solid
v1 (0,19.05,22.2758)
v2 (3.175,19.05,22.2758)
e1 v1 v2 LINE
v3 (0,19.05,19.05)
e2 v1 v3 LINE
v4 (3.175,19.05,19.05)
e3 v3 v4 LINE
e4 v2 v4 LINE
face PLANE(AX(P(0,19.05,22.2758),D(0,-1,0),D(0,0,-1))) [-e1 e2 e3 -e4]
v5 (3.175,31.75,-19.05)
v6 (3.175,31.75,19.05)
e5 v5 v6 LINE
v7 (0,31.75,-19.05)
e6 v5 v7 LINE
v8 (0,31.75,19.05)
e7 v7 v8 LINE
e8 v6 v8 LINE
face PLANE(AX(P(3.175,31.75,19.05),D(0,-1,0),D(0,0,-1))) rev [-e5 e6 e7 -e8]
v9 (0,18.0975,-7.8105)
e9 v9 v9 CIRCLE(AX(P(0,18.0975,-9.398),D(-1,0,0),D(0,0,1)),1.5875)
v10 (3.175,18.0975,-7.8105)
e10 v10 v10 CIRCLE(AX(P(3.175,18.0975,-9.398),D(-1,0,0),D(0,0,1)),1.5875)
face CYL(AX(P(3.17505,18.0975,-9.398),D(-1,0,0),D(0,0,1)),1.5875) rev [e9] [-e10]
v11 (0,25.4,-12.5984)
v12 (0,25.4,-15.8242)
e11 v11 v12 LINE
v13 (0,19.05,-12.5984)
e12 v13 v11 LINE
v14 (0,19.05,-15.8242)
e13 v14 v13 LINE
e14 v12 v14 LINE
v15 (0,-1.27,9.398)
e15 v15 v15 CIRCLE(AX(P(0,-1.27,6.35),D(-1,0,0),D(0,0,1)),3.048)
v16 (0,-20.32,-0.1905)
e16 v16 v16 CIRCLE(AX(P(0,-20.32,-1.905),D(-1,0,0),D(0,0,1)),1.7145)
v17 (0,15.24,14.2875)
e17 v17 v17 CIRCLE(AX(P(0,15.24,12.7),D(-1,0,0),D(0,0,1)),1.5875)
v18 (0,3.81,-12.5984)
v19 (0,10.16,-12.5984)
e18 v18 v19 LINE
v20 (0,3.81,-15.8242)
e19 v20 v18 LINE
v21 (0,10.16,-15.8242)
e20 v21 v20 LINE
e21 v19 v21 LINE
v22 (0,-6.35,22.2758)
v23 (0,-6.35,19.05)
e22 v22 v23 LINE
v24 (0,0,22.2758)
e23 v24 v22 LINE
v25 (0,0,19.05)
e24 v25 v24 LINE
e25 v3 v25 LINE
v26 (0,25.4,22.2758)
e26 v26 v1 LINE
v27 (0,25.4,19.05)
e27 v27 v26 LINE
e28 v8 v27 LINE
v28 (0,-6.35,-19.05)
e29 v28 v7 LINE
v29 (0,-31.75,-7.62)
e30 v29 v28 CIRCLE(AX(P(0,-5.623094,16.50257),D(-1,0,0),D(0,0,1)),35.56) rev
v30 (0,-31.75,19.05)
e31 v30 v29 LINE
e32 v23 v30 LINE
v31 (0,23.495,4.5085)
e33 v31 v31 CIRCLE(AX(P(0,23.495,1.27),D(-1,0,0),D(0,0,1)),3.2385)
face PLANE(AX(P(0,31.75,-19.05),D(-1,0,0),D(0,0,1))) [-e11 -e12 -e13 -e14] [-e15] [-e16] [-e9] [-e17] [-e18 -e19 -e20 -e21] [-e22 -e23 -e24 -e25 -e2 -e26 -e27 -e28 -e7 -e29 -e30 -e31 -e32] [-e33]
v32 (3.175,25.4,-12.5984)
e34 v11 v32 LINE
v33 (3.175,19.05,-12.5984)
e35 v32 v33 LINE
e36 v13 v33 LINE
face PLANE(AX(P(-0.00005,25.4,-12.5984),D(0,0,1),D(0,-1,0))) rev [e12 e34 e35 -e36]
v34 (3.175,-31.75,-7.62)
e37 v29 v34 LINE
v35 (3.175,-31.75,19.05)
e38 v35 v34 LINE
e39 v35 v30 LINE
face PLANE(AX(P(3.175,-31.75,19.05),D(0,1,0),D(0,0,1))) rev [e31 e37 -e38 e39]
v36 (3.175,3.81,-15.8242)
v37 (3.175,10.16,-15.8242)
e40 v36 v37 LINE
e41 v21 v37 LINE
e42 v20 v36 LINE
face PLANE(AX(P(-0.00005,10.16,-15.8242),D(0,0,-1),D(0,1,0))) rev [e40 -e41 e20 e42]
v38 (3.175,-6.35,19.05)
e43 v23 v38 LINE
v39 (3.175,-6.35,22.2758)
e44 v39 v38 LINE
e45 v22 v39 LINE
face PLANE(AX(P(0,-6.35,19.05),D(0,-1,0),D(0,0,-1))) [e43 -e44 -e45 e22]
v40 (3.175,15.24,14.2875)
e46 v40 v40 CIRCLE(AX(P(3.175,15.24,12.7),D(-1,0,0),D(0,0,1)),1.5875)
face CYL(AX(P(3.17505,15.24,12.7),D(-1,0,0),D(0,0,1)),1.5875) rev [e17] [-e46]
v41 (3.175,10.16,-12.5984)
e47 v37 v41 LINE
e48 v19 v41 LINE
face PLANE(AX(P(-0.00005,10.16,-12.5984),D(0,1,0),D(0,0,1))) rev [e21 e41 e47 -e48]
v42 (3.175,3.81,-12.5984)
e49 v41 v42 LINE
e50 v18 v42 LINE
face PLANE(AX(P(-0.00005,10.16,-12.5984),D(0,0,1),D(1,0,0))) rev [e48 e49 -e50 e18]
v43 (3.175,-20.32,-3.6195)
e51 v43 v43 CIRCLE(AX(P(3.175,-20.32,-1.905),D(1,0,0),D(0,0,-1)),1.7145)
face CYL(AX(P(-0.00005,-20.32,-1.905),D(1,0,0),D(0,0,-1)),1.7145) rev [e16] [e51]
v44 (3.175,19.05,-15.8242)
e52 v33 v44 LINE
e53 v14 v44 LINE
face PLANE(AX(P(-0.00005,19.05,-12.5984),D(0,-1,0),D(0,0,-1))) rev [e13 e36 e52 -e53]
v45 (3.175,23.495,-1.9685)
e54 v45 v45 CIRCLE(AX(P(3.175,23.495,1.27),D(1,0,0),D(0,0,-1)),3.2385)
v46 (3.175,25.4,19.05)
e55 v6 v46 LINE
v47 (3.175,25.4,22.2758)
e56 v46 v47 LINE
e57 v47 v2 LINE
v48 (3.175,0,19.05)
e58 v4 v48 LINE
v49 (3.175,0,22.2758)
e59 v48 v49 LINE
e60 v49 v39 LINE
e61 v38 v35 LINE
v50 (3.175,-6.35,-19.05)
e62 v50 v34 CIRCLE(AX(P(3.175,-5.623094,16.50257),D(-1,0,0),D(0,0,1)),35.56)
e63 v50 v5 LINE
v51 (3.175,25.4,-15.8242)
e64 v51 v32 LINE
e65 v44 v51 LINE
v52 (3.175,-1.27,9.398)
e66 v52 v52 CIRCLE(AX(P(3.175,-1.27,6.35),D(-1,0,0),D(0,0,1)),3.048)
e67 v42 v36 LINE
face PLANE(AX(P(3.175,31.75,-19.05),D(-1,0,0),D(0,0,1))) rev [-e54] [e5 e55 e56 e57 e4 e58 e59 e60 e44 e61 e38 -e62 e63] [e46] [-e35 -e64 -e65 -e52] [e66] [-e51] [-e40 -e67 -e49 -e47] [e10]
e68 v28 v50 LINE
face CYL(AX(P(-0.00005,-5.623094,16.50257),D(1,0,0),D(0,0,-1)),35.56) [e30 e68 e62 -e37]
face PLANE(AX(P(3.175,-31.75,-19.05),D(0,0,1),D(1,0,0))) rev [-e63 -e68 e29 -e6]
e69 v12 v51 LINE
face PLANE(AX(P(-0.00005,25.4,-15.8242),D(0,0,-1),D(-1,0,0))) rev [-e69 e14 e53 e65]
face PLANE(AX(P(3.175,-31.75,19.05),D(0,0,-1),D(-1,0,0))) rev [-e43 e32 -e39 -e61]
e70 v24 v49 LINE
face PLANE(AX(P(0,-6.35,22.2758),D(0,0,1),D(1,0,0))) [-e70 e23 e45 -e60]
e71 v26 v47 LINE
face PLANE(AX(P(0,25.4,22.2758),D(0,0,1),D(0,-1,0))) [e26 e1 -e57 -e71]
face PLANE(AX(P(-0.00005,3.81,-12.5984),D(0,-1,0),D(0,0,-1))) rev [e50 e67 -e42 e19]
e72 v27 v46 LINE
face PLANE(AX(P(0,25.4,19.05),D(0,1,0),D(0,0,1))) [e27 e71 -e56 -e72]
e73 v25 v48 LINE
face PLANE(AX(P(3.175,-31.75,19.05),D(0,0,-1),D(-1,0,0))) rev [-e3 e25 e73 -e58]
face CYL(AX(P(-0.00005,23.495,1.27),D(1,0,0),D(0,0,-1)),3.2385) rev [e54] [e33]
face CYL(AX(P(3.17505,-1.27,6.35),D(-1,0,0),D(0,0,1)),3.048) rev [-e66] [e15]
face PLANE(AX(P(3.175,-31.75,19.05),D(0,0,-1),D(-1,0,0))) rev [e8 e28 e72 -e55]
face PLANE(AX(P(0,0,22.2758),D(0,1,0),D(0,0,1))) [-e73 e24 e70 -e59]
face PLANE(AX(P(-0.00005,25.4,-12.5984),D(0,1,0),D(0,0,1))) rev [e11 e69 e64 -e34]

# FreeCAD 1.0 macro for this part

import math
import FreeCAD as App
import Part
import Sketcher
Q = App.Units.Quantity

doc = App.newDocument("Part")
body = doc.addObject("PartDesign::Body", "Body")

# Sketch on YZ plane
sketch1 = body.newObject("Sketcher::SketchObject", "Sketch")
sketch1.AttachmentSupport = (doc.getObject("YZ_Plane"), [""])
sketch1.MapMode = "FlatFace"
sketch1.addGeometry([
    Part.LineSegment(App.Vector(32, 19, 0), App.Vector(-32, 19, 0)),
    Part.LineSegment(App.Vector(-32, 19, 0), App.Vector(-32, -19, 0)),
    Part.LineSegment(App.Vector(-32, -19, 0), App.Vector(32, -19, 0)),
    Part.LineSegment(App.Vector(32, -19, 0), App.Vector(32, 19, 0)),
], False)
sketch1.addConstraint([
    Sketcher.Constraint("Coincident", 0, 2, 1, 1),
    Sketcher.Constraint("Coincident", 1, 2, 2, 1),
    Sketcher.Constraint("Coincident", 2, 2, 3, 1),
    Sketcher.Constraint("Coincident", 3, 2, 0, 1),
    Sketcher.Constraint("Horizontal", 0),
    Sketcher.Constraint("Vertical", 1),
    Sketcher.Constraint("Horizontal", 2),
    Sketcher.Constraint("Vertical", 3),
    Sketcher.Constraint("Symmetric", 0, 2, 2, 2, -1, 1),
    Sketcher.Constraint("DistanceX", 0, 2, 0, 1, Q("2.5 in")),
    Sketcher.Constraint("DistanceY", 1, 2, 1, 1, Q("1.5 in")),
])
pad1 = body.newObject("PartDesign::Pad", "Pad")
pad1.Profile = sketch1
pad1.Length = Q("0.125 in")

# Sketch on YZ plane
sketch2 = body.newObject("Sketcher::SketchObject", "Sketch001")
sketch2.AttachmentSupport = (doc.getObject("YZ_Plane"), [""])
sketch2.MapMode = "FlatFace"
sketch2.AttachmentOffset = App.Placement(App.Vector(0, 0, 0.125 * 25.4), App.Rotation())
sketch2.addGeometry([
    Part.LineSegment(App.Vector(25.4, 22.3, 0), App.Vector(19.1, 22.3, 0)),  # 0
    Part.LineSegment(App.Vector(19.1, 22.3, 0), App.Vector(19.1, 19.1, 0)),  # 1
    Part.LineSegment(App.Vector(19.1, 19.1, 0), App.Vector(25.4, 19.1, 0)),  # 2
    Part.LineSegment(App.Vector(25.4, 19.1, 0), App.Vector(25.4, 22.3, 0)),  # 3
    Part.LineSegment(App.Vector(0, 22.3, 0), App.Vector(-6.3, 22.3, 0)),  # 4
    Part.LineSegment(App.Vector(-6.3, 22.3, 0), App.Vector(-6.3, 19.1, 0)),  # 5
    Part.LineSegment(App.Vector(-6.3, 19.1, 0), App.Vector(0, 19.1, 0)),  # 6
    Part.LineSegment(App.Vector(0, 19.1, 0), App.Vector(0, 22.3, 0)),  # 7
], False)
sketch2.addConstraint([
    Sketcher.Constraint("Coincident", 0, 2, 1, 1),
    Sketcher.Constraint("Coincident", 1, 2, 2, 1),
    Sketcher.Constraint("Coincident", 2, 2, 3, 1),
    Sketcher.Constraint("Coincident", 3, 2, 0, 1),
    Sketcher.Constraint("Coincident", 4, 2, 5, 1),
    Sketcher.Constraint("Coincident", 5, 2, 6, 1),
    Sketcher.Constraint("Coincident", 6, 2, 7, 1),
    Sketcher.Constraint("Coincident", 7, 2, 4, 1),
    Sketcher.Constraint("Horizontal", 0),
    Sketcher.Constraint("Vertical", 1),
    Sketcher.Constraint("Horizontal", 2),
    Sketcher.Constraint("Vertical", 3),
    Sketcher.Constraint("Horizontal", 4),
    Sketcher.Constraint("Vertical", 5),
    Sketcher.Constraint("Horizontal", 6),
    Sketcher.Constraint("Vertical", 7),
    Sketcher.Constraint("PointOnObject", 6, 2, -2),
    Sketcher.Constraint("Horizontal", 3, 2, 4, 2),
    Sketcher.Constraint("Horizontal", 2, 2, 5, 2),
    Sketcher.Constraint("Equal", 2, 4),
    Sketcher.Constraint("DistanceX", -1, 1, 2, 2, Q("1 in")),
    Sketcher.Constraint("DistanceX", 0, 2, 0, 1, Q("0.25 in")),
    Sketcher.Constraint("DistanceY", 1, 2, 1, 1, Q("0.127 in")),
    Sketcher.Constraint("DistanceY", -1, 1, 1, 2, Q("0.75 in")),
])
pad2 = body.newObject("PartDesign::Pad", "Pad001")
pad2.Profile = sketch2
pad2.Length = Q("0.125 in")
pad2.Reversed = True

# Sketch on YZ plane
sketch3 = body.newObject("Sketcher::SketchObject", "Sketch002")
sketch3.AttachmentSupport = (doc.getObject("YZ_Plane"), [""])
sketch3.MapMode = "FlatFace"
sketch3.AttachmentOffset = App.Placement(App.Vector(0, 0, 0.125 * 25.4), App.Rotation())
sketch3.addGeometry(Part.Circle(App.Vector(-20.3, -1.9, 0), App.Vector(0, 0, 1), 1.7), False)
sketch3.addConstraint([
    Sketcher.Constraint("Diameter", 0, Q("0.135 in")),
    Sketcher.Constraint("DistanceX", 0, 3, -1, 1, Q("0.8 in")),
    Sketcher.Constraint("DistanceY", 0, 3, -1, 1, Q("0.075 in")),
])
pocket1 = body.newObject("PartDesign::Pocket", "Pocket")
pocket1.Profile = sketch3
pocket1.Type = "ThroughAll"

# Sketch on YZ plane
sketch4 = body.newObject("Sketcher::SketchObject", "Sketch003")
sketch4.AttachmentSupport = (doc.getObject("YZ_Plane"), [""])
sketch4.MapMode = "FlatFace"
sketch4.AttachmentOffset = App.Placement(App.Vector(0, 0, 0.125 * 25.4), App.Rotation())
sketch4.addGeometry(Part.Circle(App.Vector(23.5, 1.3, 0), App.Vector(0, 0, 1), 3.2), False)
sketch4.addConstraint([
    Sketcher.Constraint("Diameter", 0, Q("0.255 in")),
    Sketcher.Constraint("DistanceY", -1, 1, 0, 3, Q("0.05 in")),
    Sketcher.Constraint("DistanceX", -1, 1, 0, 3, Q("0.925 in")),
])
pocket2 = body.newObject("PartDesign::Pocket", "Pocket001")
pocket2.Profile = sketch4
pocket2.Type = "ThroughAll"

# Sketch on YZ plane
sketch5 = body.newObject("Sketcher::SketchObject", "Sketch004")
sketch5.AttachmentSupport = (doc.getObject("YZ_Plane"), [""])
sketch5.MapMode = "FlatFace"
sketch5.AttachmentOffset = App.Placement(App.Vector(0, 0, 0.125 * 25.4), App.Rotation())
sketch5.addGeometry([
    Part.LineSegment(App.Vector(-32, -19, 0), App.Vector(-6, -19, 0)),
    Part.ArcOfCircle(Part.Circle(App.Vector(-6, 17, 0), App.Vector(0, 0, 1), 36), math.radians(-137), math.radians(-91)),
    Part.LineSegment(App.Vector(-32, -8, 0), App.Vector(-32, -19, 0)),
], False)
sketch5.addConstraint([
    Sketcher.Constraint("Coincident", 0, 2, 1, 2),
    Sketcher.Constraint("Coincident", 1, 1, 2, 1),
    Sketcher.Constraint("Coincident", 2, 2, 0, 1),
    Sketcher.Constraint("Horizontal", 0),
    Sketcher.Constraint("Vertical", 2),
    Sketcher.Constraint("Radius", 1, Q("1.4 in")),
    Sketcher.Constraint("DistanceX", 0, 1, 0, 2, Q("1 in")),
    Sketcher.Constraint("DistanceY", 2, 2, 2, 1, Q("0.45 in")),
    Sketcher.Constraint("DistanceY", 1, 1, -1, 1, Q("0.3 in")),
    Sketcher.Constraint("DistanceX", 0, 2, -1, 1, Q("0.25 in")),
])
pocket3 = body.newObject("PartDesign::Pocket", "Pocket002")
pocket3.Profile = sketch5
pocket3.Type = "ThroughAll"

# Sketch on YZ plane
sketch6 = body.newObject("Sketcher::SketchObject", "Sketch005")
sketch6.AttachmentSupport = (doc.getObject("YZ_Plane"), [""])
sketch6.MapMode = "FlatFace"
sketch6.AttachmentOffset = App.Placement(App.Vector(0, 0, 0.125 * 25.4), App.Rotation())
sketch6.addGeometry([
    Part.LineSegment(App.Vector(25.4, -12.6, 0), App.Vector(19.1, -12.6, 0)),  # 0
    Part.LineSegment(App.Vector(19.1, -12.6, 0), App.Vector(19.1, -15.8, 0)),  # 1
    Part.LineSegment(App.Vector(19.1, -15.8, 0), App.Vector(25.4, -15.8, 0)),  # 2
    Part.LineSegment(App.Vector(25.4, -15.8, 0), App.Vector(25.4, -12.6, 0)),  # 3
    Part.LineSegment(App.Vector(10.2, -12.6, 0), App.Vector(3.8, -12.6, 0)),  # 4
    Part.LineSegment(App.Vector(3.8, -12.6, 0), App.Vector(3.8, -15.8, 0)),  # 5
    Part.LineSegment(App.Vector(3.8, -15.8, 0), App.Vector(10.2, -15.8, 0)),  # 6
    Part.LineSegment(App.Vector(10.2, -15.8, 0), App.Vector(10.2, -12.6, 0)),  # 7
], False)
sketch6.addConstraint([
    Sketcher.Constraint("Coincident", 0, 2, 1, 1),
    Sketcher.Constraint("Coincident", 1, 2, 2, 1),
    Sketcher.Constraint("Coincident", 2, 2, 3, 1),
    Sketcher.Constraint("Coincident", 3, 2, 0, 1),
    Sketcher.Constraint("Coincident", 4, 2, 5, 1),
    Sketcher.Constraint("Coincident", 5, 2, 6, 1),
    Sketcher.Constraint("Coincident", 6, 2, 7, 1),
    Sketcher.Constraint("Coincident", 7, 2, 4, 1),
    Sketcher.Constraint("Horizontal", 0),
    Sketcher.Constraint("Vertical", 1),
    Sketcher.Constraint("Horizontal", 2),
    Sketcher.Constraint("Vertical", 3),
    Sketcher.Constraint("Horizontal", 4),
    Sketcher.Constraint("Vertical", 5),
    Sketcher.Constraint("Horizontal", 6),
    Sketcher.Constraint("Vertical", 7),
    Sketcher.Constraint("Horizontal", 3, 2, 4, 2),
    Sketcher.Constraint("Horizontal", 2, 2, 5, 2),
    Sketcher.Constraint("Equal", 2, 4),
    Sketcher.Constraint("DistanceX", -1, 1, 2, 2, Q("1 in")),
    Sketcher.Constraint("DistanceX", 0, 2, 0, 1, Q("0.25 in")),
    Sketcher.Constraint("DistanceX", -1, 1, 6, 2, Q("0.4 in")),
    Sketcher.Constraint("DistanceY", 1, 2, 1, 1, Q("0.127 in")),
    Sketcher.Constraint("DistanceY", 0, 2, -1, 1, Q("0.496 in")),
])
pocket4 = body.newObject("PartDesign::Pocket", "Pocket003")
pocket4.Profile = sketch6
pocket4.Type = "ThroughAll"

# Sketch on YZ plane
sketch7 = body.newObject("Sketcher::SketchObject", "Sketch006")
sketch7.AttachmentSupport = (doc.getObject("YZ_Plane"), [""])
sketch7.MapMode = "FlatFace"
sketch7.addGeometry(Part.Circle(App.Vector(-1.3, 6.3, 0), App.Vector(0, 0, 1), 3), False)
sketch7.addConstraint([
    Sketcher.Constraint("Diameter", 0, Q("0.24 in")),
    Sketcher.Constraint("DistanceX", 0, 3, -1, 1, Q("0.05 in")),
    Sketcher.Constraint("DistanceY", -1, 1, 0, 3, Q("0.25 in")),
])
pocket5 = body.newObject("PartDesign::Pocket", "Pocket004")
pocket5.Profile = sketch7
pocket5.Type = "ThroughAll"
pocket5.Reversed = True

# Sketch on YZ plane
sketch8 = body.newObject("Sketcher::SketchObject", "Sketch007")
sketch8.AttachmentSupport = (doc.getObject("YZ_Plane"), [""])
sketch8.MapMode = "FlatFace"
sketch8.addGeometry(Part.Circle(App.Vector(15.2, 12.7, 0), App.Vector(0, 0, 1), 1.6), False)
sketch8.addConstraint([
    Sketcher.Constraint("Diameter", 0, Q("0.125 in")),
    Sketcher.Constraint("DistanceX", -1, 1, 0, 3, Q("0.6 in")),
    Sketcher.Constraint("DistanceY", -1, 1, 0, 3, Q("0.5 in")),
])
pocket6 = body.newObject("PartDesign::Pocket", "Pocket005")
pocket6.Profile = sketch8
pocket6.Type = "ThroughAll"
pocket6.Reversed = True

# Sketch on YZ plane
sketch9 = body.newObject("Sketcher::SketchObject", "Sketch008")
sketch9.AttachmentSupport = (doc.getObject("YZ_Plane"), [""])
sketch9.MapMode = "FlatFace"
sketch9.addGeometry(Part.Circle(App.Vector(18.1, -9.4, 0), App.Vector(0, 0, 1), 1.6), False)
sketch9.addConstraint([
    Sketcher.Constraint("Diameter", 0, Q("0.125 in")),
    Sketcher.Constraint("DistanceY", 0, 3, -1, 1, Q("0.37 in")),
    Sketcher.Constraint("DistanceX", -1, 1, 0, 3, Q("0.7125 in")),
])
pocket7 = body.newObject("PartDesign::Pocket", "Pocket006")
pocket7.Profile = sketch9
pocket7.Type = "ThroughAll"
pocket7.Reversed = True

doc.recompute()
